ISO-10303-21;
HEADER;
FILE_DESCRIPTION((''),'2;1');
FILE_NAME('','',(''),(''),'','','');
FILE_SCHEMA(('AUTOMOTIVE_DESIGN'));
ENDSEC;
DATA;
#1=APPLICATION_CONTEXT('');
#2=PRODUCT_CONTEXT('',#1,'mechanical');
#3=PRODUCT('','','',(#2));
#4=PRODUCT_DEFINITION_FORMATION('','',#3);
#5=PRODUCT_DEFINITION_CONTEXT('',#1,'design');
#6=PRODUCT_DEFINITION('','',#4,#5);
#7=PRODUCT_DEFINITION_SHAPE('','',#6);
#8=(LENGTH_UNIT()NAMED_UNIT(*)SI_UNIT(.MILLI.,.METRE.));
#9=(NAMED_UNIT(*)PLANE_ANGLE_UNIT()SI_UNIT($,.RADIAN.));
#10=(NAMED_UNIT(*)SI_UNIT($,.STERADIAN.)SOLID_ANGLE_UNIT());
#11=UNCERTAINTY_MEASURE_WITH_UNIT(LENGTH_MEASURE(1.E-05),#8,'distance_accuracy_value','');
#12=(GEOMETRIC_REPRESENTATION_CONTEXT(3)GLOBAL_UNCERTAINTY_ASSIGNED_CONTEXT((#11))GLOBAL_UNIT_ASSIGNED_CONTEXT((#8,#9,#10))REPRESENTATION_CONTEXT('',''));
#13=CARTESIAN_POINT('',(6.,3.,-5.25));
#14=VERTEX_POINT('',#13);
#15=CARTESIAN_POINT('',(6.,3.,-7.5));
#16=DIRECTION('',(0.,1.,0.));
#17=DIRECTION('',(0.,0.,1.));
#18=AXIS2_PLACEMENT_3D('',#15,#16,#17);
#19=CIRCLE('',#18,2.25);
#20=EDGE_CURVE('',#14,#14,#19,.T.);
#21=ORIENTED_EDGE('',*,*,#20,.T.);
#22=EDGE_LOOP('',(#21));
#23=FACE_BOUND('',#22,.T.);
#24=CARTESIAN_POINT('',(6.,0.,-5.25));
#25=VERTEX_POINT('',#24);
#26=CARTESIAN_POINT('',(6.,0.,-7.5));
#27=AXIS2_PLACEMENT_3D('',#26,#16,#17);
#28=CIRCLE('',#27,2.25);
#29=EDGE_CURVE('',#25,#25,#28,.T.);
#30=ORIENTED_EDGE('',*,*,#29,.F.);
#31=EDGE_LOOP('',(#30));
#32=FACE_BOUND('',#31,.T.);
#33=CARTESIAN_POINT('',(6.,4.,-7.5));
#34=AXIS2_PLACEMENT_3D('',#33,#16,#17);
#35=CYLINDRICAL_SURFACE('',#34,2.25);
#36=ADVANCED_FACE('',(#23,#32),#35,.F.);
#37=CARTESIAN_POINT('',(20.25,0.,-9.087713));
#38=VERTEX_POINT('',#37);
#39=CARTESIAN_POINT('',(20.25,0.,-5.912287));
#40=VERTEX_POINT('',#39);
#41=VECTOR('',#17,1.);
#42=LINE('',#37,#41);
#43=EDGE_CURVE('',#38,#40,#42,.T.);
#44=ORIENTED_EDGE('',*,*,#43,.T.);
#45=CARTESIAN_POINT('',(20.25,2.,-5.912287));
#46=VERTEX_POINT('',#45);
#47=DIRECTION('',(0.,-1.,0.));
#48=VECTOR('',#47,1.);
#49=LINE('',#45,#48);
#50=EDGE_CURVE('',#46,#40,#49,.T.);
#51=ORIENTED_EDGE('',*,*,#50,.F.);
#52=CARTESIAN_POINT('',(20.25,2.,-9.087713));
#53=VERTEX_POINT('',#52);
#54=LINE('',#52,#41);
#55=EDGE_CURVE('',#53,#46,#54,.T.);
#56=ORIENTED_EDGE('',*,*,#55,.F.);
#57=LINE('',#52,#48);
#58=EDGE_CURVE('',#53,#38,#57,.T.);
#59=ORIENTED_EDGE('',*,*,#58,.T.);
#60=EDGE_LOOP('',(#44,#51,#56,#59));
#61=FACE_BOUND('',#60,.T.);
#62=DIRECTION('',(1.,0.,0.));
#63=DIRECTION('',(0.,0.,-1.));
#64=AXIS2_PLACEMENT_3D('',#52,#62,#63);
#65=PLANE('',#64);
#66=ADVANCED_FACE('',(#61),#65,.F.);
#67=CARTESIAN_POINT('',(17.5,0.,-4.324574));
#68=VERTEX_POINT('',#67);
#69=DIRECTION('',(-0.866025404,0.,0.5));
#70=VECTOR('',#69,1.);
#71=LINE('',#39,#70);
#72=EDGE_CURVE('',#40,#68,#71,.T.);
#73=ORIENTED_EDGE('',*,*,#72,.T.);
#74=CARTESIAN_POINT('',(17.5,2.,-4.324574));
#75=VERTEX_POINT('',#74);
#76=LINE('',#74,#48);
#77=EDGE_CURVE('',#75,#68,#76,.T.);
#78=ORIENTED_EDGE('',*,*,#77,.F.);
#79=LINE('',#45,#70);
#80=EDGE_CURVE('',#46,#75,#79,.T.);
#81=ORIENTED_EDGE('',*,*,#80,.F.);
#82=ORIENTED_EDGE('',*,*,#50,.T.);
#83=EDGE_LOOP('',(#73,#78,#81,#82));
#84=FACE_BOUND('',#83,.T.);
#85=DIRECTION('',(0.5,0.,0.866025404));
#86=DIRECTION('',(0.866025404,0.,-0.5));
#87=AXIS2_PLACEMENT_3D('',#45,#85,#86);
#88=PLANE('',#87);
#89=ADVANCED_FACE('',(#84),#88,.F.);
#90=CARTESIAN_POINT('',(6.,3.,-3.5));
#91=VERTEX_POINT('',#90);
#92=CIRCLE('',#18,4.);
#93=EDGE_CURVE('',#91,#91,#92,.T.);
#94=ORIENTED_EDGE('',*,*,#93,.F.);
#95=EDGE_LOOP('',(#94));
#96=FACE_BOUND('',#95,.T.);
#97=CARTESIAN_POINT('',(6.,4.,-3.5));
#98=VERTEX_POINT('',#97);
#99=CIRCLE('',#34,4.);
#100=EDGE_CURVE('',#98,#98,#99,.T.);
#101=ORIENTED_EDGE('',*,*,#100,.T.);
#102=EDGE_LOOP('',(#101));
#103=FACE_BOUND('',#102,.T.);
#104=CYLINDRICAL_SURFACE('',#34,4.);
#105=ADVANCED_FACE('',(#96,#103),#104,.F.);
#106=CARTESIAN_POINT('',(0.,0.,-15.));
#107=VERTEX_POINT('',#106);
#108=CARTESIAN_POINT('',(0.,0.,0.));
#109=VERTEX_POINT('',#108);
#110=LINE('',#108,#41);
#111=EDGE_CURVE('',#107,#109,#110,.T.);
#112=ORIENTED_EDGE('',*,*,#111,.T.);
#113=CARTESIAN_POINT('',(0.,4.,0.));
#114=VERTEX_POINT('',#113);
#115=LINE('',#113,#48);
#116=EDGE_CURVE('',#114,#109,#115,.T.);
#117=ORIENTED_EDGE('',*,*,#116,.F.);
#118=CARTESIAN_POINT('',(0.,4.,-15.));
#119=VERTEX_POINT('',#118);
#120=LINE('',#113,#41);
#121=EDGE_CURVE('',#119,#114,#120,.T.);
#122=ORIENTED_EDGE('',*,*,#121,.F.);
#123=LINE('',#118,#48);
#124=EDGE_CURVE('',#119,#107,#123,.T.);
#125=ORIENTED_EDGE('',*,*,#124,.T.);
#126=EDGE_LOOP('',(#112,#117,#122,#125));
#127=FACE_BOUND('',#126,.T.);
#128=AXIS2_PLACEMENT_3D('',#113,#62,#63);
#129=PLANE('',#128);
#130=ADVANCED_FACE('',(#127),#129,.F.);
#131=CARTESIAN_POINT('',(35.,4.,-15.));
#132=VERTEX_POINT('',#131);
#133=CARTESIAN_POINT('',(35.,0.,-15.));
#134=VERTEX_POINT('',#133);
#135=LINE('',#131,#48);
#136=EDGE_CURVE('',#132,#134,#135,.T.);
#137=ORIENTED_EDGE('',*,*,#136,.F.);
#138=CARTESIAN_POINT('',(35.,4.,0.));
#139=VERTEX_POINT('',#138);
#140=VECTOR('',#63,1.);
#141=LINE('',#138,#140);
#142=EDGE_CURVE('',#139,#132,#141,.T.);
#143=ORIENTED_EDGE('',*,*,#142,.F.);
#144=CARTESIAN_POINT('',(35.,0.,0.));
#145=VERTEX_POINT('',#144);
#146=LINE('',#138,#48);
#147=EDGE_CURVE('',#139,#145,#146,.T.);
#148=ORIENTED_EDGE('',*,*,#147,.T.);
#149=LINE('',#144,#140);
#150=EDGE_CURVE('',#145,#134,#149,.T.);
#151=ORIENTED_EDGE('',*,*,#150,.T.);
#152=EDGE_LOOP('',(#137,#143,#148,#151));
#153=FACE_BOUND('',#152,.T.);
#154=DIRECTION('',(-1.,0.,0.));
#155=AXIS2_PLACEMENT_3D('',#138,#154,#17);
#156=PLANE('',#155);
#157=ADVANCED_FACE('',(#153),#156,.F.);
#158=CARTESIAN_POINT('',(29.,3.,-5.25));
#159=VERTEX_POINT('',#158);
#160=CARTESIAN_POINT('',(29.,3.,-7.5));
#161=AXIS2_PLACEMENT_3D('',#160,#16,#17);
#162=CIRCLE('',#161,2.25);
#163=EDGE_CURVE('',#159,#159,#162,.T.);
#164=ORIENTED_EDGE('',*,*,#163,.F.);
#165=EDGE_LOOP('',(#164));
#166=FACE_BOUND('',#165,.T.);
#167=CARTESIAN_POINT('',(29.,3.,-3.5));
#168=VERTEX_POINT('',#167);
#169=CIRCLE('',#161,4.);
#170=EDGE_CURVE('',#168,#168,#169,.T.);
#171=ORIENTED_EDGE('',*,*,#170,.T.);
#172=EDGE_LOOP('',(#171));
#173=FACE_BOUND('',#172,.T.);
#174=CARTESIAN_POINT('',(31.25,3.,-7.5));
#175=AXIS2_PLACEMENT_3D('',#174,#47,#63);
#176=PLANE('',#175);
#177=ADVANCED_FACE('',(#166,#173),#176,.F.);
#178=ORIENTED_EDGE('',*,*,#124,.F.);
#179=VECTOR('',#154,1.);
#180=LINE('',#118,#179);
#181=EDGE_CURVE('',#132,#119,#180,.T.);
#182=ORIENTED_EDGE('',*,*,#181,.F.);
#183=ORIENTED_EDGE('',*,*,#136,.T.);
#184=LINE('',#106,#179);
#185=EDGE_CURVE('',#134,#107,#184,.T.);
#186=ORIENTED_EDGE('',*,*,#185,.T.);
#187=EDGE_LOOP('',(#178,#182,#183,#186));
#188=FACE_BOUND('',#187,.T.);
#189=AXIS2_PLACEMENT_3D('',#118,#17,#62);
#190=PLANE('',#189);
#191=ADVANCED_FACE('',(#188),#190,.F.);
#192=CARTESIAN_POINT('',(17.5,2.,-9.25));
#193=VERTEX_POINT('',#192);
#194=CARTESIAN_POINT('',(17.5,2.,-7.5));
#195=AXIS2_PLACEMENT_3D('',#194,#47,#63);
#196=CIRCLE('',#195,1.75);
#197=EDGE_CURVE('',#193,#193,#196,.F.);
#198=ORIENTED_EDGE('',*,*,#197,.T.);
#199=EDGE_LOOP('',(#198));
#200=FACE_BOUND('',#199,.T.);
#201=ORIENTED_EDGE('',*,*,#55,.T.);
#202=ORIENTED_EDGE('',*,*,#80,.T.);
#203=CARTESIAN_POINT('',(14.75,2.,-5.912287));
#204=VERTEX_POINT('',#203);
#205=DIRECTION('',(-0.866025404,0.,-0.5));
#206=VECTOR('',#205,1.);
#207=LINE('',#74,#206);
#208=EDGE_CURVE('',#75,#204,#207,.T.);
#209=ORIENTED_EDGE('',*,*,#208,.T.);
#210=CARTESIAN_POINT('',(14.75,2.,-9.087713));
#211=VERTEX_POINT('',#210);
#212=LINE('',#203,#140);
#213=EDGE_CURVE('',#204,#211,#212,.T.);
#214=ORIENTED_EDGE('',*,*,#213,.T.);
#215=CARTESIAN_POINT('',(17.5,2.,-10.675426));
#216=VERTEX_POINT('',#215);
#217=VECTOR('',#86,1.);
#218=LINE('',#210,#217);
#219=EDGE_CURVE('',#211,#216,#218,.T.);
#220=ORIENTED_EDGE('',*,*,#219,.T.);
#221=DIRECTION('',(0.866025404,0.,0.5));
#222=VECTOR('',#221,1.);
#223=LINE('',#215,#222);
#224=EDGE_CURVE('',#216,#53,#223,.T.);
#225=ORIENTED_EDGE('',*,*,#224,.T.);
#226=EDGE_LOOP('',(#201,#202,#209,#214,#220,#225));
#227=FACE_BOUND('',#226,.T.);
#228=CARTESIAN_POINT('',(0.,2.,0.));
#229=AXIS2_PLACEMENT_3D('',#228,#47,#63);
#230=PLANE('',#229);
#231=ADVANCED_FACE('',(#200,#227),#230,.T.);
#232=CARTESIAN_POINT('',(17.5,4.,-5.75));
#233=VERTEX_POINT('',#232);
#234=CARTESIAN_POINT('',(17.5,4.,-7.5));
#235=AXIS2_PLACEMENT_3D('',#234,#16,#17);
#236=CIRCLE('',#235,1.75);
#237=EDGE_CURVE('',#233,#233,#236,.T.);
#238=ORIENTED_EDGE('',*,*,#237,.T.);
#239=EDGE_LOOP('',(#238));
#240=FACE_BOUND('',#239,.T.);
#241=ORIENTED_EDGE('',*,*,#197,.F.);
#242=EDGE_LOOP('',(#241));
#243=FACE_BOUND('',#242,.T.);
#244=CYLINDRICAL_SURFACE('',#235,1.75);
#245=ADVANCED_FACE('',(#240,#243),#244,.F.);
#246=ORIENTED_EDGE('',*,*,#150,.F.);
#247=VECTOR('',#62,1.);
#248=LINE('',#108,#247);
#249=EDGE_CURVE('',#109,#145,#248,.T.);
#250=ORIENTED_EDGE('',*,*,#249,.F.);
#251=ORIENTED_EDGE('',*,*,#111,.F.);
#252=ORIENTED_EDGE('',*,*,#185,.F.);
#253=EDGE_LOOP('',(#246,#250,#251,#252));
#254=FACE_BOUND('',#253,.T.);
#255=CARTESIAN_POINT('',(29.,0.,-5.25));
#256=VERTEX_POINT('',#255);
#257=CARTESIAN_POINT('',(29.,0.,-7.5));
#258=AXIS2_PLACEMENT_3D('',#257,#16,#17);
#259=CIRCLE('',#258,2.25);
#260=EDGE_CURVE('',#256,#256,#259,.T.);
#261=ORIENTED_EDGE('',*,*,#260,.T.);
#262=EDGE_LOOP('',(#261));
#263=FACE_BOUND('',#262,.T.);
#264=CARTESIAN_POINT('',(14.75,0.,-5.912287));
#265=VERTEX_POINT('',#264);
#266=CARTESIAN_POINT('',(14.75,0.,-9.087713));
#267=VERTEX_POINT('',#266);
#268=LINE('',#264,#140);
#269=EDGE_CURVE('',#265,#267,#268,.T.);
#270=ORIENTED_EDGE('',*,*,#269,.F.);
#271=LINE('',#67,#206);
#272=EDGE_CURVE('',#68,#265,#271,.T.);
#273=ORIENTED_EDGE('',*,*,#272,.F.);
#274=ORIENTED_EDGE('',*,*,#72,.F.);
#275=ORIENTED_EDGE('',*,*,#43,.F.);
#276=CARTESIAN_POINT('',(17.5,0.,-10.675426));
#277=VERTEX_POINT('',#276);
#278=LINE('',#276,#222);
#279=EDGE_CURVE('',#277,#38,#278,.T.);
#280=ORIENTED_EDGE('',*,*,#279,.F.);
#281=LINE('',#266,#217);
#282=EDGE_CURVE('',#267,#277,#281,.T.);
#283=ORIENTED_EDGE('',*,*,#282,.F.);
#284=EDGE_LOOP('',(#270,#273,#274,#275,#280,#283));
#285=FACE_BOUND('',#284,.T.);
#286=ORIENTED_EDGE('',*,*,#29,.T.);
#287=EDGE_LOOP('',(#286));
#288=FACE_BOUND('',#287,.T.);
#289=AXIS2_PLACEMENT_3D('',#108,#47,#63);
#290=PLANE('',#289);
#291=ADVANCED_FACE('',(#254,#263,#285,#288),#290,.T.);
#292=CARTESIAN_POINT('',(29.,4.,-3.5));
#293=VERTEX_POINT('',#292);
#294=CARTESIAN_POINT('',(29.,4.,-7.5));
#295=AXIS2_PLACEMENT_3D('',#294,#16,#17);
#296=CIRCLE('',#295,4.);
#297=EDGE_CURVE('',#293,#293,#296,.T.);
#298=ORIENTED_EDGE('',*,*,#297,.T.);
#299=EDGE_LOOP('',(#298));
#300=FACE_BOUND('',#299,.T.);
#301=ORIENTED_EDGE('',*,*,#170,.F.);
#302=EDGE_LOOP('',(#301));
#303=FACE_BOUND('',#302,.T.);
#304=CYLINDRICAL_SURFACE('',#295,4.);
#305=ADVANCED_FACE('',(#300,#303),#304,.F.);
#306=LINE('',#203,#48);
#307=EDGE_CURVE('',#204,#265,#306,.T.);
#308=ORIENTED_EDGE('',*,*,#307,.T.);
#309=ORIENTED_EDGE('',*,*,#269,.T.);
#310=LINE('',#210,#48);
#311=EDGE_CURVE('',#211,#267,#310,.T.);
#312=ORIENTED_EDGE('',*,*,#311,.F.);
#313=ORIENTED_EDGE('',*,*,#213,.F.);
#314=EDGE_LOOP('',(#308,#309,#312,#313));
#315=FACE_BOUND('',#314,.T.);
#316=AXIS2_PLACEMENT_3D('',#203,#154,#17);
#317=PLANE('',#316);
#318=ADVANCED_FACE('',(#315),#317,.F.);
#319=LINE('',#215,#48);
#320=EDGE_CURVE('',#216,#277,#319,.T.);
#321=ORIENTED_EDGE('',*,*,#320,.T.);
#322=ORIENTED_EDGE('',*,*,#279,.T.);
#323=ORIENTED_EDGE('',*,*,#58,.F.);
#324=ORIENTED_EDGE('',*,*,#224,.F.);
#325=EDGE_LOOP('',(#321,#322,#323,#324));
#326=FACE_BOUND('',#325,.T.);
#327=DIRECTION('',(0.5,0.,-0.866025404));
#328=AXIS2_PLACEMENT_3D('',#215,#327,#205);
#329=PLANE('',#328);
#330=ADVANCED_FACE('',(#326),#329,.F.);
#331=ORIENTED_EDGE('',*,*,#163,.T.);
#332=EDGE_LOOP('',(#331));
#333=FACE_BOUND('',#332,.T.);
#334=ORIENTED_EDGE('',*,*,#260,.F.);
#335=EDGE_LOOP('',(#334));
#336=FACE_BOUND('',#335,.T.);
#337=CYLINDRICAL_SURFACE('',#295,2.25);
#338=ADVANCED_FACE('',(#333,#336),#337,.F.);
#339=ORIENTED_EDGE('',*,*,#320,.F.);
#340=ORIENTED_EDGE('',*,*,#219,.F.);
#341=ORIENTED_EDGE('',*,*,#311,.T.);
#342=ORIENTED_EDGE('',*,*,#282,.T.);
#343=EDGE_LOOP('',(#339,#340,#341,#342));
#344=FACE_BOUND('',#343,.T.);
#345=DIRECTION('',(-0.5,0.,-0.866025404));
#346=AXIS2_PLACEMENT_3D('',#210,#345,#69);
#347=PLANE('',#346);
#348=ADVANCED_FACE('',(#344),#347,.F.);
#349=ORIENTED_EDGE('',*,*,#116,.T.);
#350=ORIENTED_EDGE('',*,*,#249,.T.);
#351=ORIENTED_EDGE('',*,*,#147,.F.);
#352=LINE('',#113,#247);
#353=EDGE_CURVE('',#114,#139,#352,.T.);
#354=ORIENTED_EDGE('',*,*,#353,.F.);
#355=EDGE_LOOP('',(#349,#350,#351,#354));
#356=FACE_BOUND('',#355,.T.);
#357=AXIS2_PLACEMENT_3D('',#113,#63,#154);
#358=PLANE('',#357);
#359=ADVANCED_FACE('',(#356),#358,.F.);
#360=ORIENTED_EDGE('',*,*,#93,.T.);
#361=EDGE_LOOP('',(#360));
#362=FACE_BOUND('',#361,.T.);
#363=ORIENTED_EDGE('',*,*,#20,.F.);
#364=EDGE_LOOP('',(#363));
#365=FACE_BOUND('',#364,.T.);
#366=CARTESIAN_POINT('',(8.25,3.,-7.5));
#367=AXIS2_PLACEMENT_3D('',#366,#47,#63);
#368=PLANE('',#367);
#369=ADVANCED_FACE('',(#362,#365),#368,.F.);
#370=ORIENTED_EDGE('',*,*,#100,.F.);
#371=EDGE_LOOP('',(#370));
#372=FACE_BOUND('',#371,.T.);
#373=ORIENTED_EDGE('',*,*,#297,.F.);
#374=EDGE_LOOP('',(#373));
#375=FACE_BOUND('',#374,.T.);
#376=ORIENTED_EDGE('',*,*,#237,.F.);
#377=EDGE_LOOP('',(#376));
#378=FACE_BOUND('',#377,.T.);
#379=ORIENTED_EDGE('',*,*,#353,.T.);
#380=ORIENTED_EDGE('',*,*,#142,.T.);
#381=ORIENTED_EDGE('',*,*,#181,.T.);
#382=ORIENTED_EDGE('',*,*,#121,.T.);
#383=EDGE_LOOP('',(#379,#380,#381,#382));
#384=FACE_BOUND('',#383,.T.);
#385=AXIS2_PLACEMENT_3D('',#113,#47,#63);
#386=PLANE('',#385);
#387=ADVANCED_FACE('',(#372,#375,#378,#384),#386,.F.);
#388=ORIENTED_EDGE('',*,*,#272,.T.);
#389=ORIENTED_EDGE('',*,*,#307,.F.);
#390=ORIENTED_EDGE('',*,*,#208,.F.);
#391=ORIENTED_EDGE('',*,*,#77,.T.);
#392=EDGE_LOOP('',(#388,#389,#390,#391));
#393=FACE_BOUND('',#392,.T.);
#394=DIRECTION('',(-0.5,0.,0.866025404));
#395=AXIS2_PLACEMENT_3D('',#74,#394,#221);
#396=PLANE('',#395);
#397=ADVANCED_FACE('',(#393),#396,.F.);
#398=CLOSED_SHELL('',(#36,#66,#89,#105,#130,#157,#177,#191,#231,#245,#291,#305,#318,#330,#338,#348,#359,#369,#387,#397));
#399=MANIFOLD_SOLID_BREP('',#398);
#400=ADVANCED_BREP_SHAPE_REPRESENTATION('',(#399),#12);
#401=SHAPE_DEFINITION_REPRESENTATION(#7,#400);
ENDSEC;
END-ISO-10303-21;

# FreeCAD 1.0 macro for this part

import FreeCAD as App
import Part
import Sketcher
Q = App.Units.Quantity


def add_polygon(sketch, points):
    """Adds a closed chain of lines whose ends are joined by coincident constraints."""
    first, n = sketch.GeometryCount, len(points)
    for a, b in zip(points, points[1:] + points[:1]):
        sketch.addGeometry(Part.LineSegment(App.Vector(*a, 0), App.Vector(*b, 0)), False)
    for i in range(n):
        sketch.addConstraint(Sketcher.Constraint("Coincident", first + i, 2, first + (i + 1) % n, 1))

doc = App.newDocument("Part")
body = doc.addObject("PartDesign::Body", "Body")

sketch1 = doc.addObject("Sketcher::SketchObject", "Sketch")
body.addObject(sketch1)
sketch1.AttachmentSupport = (doc.XZ_Plane, [""])
sketch1.MapMode = "FlatFace"
add_polygon(sketch1, [(0, -15), (0, 0), (35, 0), (35, -15)])
sketch1.addConstraint([
    Sketcher.Constraint("Vertical", 0),
    Sketcher.Constraint("Horizontal", 1),
    Sketcher.Constraint("Vertical", 2),
    Sketcher.Constraint("Horizontal", 3),
    Sketcher.Constraint("Coincident", 0, 2, -1, 1),
    Sketcher.Constraint("DistanceX", 1, 1, 1, 2, Q("35 mm")),
    Sketcher.Constraint("DistanceY", 0, 1, 0, 2, Q("15 mm")),
])
pad1 = doc.addObject("PartDesign::Pad", "Pad")
body.addObject(pad1)
pad1.Profile = sketch1
pad1.Length = 4
pad1.Reversed = True

sketch2 = doc.addObject("Sketcher::SketchObject", "Sketch001")
body.addObject(sketch2)
sketch2.AttachmentSupport = (doc.XZ_Plane, [""])
sketch2.MapMode = "FlatFace"
sketch2.AttachmentOffset = App.Placement(App.Vector(0, 0, -4), App.Rotation())
sketch2.addGeometry(Part.Circle(App.Vector(17.5, -7.5, 0), App.Vector(0, 0, 1), 1.8), False)
sketch2.addConstraint([
    Sketcher.Constraint("Diameter", 0, Q("3.5 mm")),
    Sketcher.Constraint("DistanceX", -1, 1, 0, 3, Q("17.5 mm")),
    Sketcher.Constraint("DistanceY", 0, 3, -1, 1, Q("7.5 mm")),
])
doc.recompute()
hole = doc.addObject("PartDesign::Hole", "Hole")
body.addObject(hole)
hole.Profile = sketch2
hole.ThreadType = "None"
hole.Diameter = 3.5
hole.DepthType = "ThroughAll"
hole.Reversed = True

sketch3 = doc.addObject("Sketcher::SketchObject", "Sketch002")
body.addObject(sketch3)
sketch3.AttachmentSupport = (doc.XZ_Plane, [""])
sketch3.MapMode = "FlatFace"
sketch3.AttachmentOffset = App.Placement(App.Vector(0, 0, -4), App.Rotation())
sketch3.addGeometry([
    Part.Circle(App.Vector(6, -7.5, 0), App.Vector(0, 0, 1), 2.2),
    Part.Circle(App.Vector(29, -7.5, 0), App.Vector(0, 0, 1), 2.2),
], False)
sketch3.addConstraint([
    Sketcher.Constraint("Equal", 0, 1),
    Sketcher.Constraint("Horizontal", 0, 3, 1, 3),
    Sketcher.Constraint("Diameter", 0, Q("4.5 mm")),
    Sketcher.Constraint("DistanceX", -1, 1, 0, 3, Q("6 mm")),
    Sketcher.Constraint("DistanceX", -1, 1, 1, 3, Q("29 mm")),
    Sketcher.Constraint("DistanceY", 0, 3, -1, 1, Q("7.5 mm")),
])
doc.recompute()
hole2 = doc.addObject("PartDesign::Hole", "Hole001")
body.addObject(hole2)
hole2.Profile = sketch3
hole2.ThreadType = "None"
hole2.Diameter = 4.5
hole2.DepthType = "ThroughAll"
hole2.HoleCutType = "Counterbore"
hole2.HoleCutDiameter = 8
hole2.HoleCutDepth = 1
hole2.Reversed = True

sketch4 = doc.addObject("Sketcher::SketchObject", "Sketch003")
body.addObject(sketch4)
sketch4.AttachmentSupport = (doc.XZ_Plane, [""])
sketch4.MapMode = "FlatFace"
add_polygon(sketch4, [(17.5, -10.7), (20.2, -9.1), (20.2, -5.9), (17.5, -4.3), (14.8, -5.9), (14.8, -9.1)])
sketch4.addConstraint([
    Sketcher.Constraint("Vertical", 1),
    Sketcher.Constraint("Vertical", 4),
    Sketcher.Constraint("Parallel", 0, 3),
    Sketcher.Constraint("Parallel", 2, 5),
    Sketcher.Constraint("Horizontal", 1, 2, 3, 2),
    Sketcher.Constraint("Horizontal", 0, 2, 4, 2),
    Sketcher.Constraint("Vertical", 2, 2, 5, 2),
    Sketcher.Constraint("Angle", 0, Q("30 deg")),
    Sketcher.Constraint("DistanceX", -1, 1, 2, 2, Q("17.5 mm")),
    Sketcher.Constraint("DistanceX", 3, 2, 1, 2, Q("5.5 mm")),
    Sketcher.Constraint("DistanceY", 1, 1, 1, 2, Q("3.175426 mm")),
    Sketcher.Constraint("DistanceY", 0, 2, -1, 1, Q("9.087713 mm")),
])
pocket1 = doc.addObject("PartDesign::Pocket", "Pocket")
body.addObject(pocket1)
pocket1.Profile = sketch4
pocket1.Length = 2

doc.recompute()
